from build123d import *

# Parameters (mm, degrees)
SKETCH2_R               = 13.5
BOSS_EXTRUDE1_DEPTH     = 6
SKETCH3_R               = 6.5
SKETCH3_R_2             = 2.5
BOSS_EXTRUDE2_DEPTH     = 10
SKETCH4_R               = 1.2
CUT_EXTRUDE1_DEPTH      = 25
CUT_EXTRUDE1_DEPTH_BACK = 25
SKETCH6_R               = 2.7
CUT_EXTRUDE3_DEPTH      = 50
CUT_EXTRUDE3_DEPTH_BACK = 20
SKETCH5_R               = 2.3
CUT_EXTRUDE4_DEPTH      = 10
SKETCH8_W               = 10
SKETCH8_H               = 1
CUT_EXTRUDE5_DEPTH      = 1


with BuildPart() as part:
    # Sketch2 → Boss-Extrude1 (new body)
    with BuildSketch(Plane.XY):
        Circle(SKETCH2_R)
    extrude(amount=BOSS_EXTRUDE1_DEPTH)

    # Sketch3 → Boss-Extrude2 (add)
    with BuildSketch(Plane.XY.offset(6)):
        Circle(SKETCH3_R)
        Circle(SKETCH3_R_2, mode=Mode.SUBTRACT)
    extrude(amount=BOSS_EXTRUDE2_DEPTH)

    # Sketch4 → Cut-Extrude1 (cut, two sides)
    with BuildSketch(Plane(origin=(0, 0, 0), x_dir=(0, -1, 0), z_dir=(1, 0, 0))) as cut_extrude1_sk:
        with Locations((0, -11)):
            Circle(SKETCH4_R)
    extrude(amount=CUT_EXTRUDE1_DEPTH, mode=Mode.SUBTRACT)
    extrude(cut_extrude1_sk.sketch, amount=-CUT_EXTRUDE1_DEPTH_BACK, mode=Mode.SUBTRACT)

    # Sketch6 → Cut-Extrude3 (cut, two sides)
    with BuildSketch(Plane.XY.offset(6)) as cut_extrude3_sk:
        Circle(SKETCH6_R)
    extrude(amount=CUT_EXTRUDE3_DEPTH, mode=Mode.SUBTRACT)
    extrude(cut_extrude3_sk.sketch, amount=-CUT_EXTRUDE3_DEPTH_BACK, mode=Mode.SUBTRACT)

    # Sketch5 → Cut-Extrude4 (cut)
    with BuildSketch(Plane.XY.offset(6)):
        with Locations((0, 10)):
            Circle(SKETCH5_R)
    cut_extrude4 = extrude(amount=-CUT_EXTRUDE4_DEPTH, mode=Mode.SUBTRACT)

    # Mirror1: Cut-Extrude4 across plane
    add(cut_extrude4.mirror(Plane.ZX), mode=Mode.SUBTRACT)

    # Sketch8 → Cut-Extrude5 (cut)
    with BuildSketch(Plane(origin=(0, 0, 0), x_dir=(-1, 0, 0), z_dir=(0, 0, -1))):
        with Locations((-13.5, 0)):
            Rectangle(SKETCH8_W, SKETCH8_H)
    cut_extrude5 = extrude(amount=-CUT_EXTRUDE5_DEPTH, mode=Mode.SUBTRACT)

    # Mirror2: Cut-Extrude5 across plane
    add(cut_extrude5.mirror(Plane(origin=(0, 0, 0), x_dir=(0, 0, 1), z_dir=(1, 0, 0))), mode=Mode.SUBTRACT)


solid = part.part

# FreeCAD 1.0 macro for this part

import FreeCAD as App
import Part
import Sketcher
from FreeCAD import Vector

doc = App.newDocument("Part")
body = doc.addObject("PartDesign::Body", "Body")

# Sketch on XY plane
sketch1 = body.newObject("Sketcher::SketchObject", "Sketch")
sketch1.AttachmentSupport = (doc.getObject("XY_Plane"), [""])
sketch1.MapMode = "FlatFace"
sketch1.addGeometry(Part.Circle(Vector(0, 0, 0), Vector(0, 0, 1), 14), False)
sketch1.addConstraint(Sketcher.Constraint("Coincident", 0, 3, -1, 1))
sketch1.addConstraint(Sketcher.Constraint("Diameter", 0, 27.0))
pad1 = body.newObject("PartDesign::Pad", "Pad")
pad1.Profile = sketch1
pad1.Length = 6

# Sketch on XY plane
sketch2 = body.newObject("Sketcher::SketchObject", "Sketch001")
sketch2.AttachmentSupport = (doc.getObject("XY_Plane"), [""])
sketch2.MapMode = "FlatFace"
sketch2.AttachmentOffset = App.Placement(Vector(0, 0, 6), App.Rotation())
sketch2.addGeometry(Part.Circle(Vector(0, 0, 0), Vector(0, 0, 1), 6.5), False)
sketch2.addGeometry(Part.Circle(Vector(0, 0, 0), Vector(0, 0, 1), 2.5), False)
sketch2.addConstraint(Sketcher.Constraint("Coincident", 0, 3, -1, 1))
sketch2.addConstraint(Sketcher.Constraint("Coincident", 1, 3, -1, 1))
sketch2.addConstraint(Sketcher.Constraint("Diameter", 0, 13.0))
sketch2.addConstraint(Sketcher.Constraint("Diameter", 1, 5.0))
pad2 = body.newObject("PartDesign::Pad", "Pad001")
pad2.Profile = sketch2
pad2.Length = 10

# Sketch on YZ plane
sketch3 = body.newObject("Sketcher::SketchObject", "Sketch002")
sketch3.AttachmentSupport = (doc.getObject("YZ_Plane"), [""])
sketch3.MapMode = "FlatFace"
sketch3.addGeometry(Part.Circle(Vector(0, 11, 0), Vector(0, 0, 1), 1.2), False)
sketch3.addConstraint(Sketcher.Constraint("PointOnObject", 0, 3, -2))
sketch3.addConstraint(Sketcher.Constraint("Diameter", 0, 2.4))
sketch3.addConstraint(Sketcher.Constraint("DistanceY", -1, 1, 0, 3, 11.0))
pocket1 = body.newObject("PartDesign::Pocket", "Pocket")
pocket1.Profile = sketch3
pocket1.Type = "ThroughAll"
pocket1.Midplane = True

# Sketch on XY plane
sketch4 = body.newObject("Sketcher::SketchObject", "Sketch003")
sketch4.AttachmentSupport = (doc.getObject("XY_Plane"), [""])
sketch4.MapMode = "FlatFace"
sketch4.AttachmentOffset = App.Placement(Vector(0, 0, 6), App.Rotation())
sketch4.addGeometry(Part.Circle(Vector(0, 0, 0), Vector(0, 0, 1), 2.7), False)
sketch4.addConstraint(Sketcher.Constraint("Coincident", 0, 3, -1, 1))
sketch4.addConstraint(Sketcher.Constraint("Diameter", 0, 5.4))
pocket2 = body.newObject("PartDesign::Pocket", "Pocket001")
pocket2.Profile = sketch4
pocket2.Type = "ThroughAll"
pocket2.Midplane = True

# Sketch on XY plane
sketch5 = body.newObject("Sketcher::SketchObject", "Sketch004")
sketch5.AttachmentSupport = (doc.getObject("XY_Plane"), [""])
sketch5.MapMode = "FlatFace"
sketch5.AttachmentOffset = App.Placement(Vector(0, 0, 6), App.Rotation())
sketch5.addGeometry(Part.Circle(Vector(0, 10, 0), Vector(0, 0, 1), 2.3), False)
sketch5.addConstraint(Sketcher.Constraint("PointOnObject", 0, 3, -2))
sketch5.addConstraint(Sketcher.Constraint("Diameter", 0, 4.6))
sketch5.addConstraint(Sketcher.Constraint("DistanceY", -1, 1, 0, 3, 10.0))
pocket3 = body.newObject("PartDesign::Pocket", "Pocket002")
pocket3.Profile = sketch5
pocket3.Length = 10
doc.recompute()

mirrored = body.newObject("PartDesign::Mirrored", "Mirrored")
mirrored.Originals = [pocket3]
mirrored.MirrorPlane = (doc.getObject("XZ_Plane"), [""])
body.Tip = mirrored

# Sketch on XY plane
sketch6 = body.newObject("Sketcher::SketchObject", "Sketch005")
sketch6.AttachmentSupport = (doc.getObject("XY_Plane"), [""])
sketch6.MapMode = "FlatFace"
sketch6.addGeometry(Part.LineSegment(Vector(18.5, 0.5, 0), Vector(18.5, -0.5, 0)), False)
sketch6.addGeometry(Part.LineSegment(Vector(18.5, -0.5, 0), Vector(8.5, -0.5, 0)), False)
sketch6.addGeometry(Part.LineSegment(Vector(8.5, -0.5, 0), Vector(8.5, 0.5, 0)), False)
sketch6.addGeometry(Part.LineSegment(Vector(8.5, 0.5, 0), Vector(18.5, 0.5, 0)), False)
sketch6.addConstraint(Sketcher.Constraint("Coincident", 0, 2, 1, 1))
sketch6.addConstraint(Sketcher.Constraint("Coincident", 1, 2, 2, 1))
sketch6.addConstraint(Sketcher.Constraint("Coincident", 2, 2, 3, 1))
sketch6.addConstraint(Sketcher.Constraint("Coincident", 3, 2, 0, 1))
sketch6.addConstraint(Sketcher.Constraint("Vertical", 0))
sketch6.addConstraint(Sketcher.Constraint("Horizontal", 1))
sketch6.addConstraint(Sketcher.Constraint("Vertical", 2))
sketch6.addConstraint(Sketcher.Constraint("Horizontal", 3))
sketch6.addConstraint(Sketcher.Constraint("DistanceX", 1, 2, 1, 1, 10.0))
sketch6.addConstraint(Sketcher.Constraint("DistanceY", 0, 2, 0, 1, 1.0))
sketch6.addConstraint(Sketcher.Constraint("DistanceX", -1, 1, 0, 2, 18.5))
sketch6.addConstraint(Sketcher.Constraint("DistanceY", 0, 2, -1, 1, 0.5))
pocket4 = body.newObject("PartDesign::Pocket", "Pocket003")
pocket4.Profile = sketch6
pocket4.Length = 1
pocket4.Reversed = True
doc.recompute()

mirrored2 = body.newObject("PartDesign::Mirrored", "Mirrored001")
mirrored2.Originals = [pocket4]
mirrored2.MirrorPlane = (doc.getObject("YZ_Plane"), [""])
body.Tip = mirrored2

doc.recompute()
